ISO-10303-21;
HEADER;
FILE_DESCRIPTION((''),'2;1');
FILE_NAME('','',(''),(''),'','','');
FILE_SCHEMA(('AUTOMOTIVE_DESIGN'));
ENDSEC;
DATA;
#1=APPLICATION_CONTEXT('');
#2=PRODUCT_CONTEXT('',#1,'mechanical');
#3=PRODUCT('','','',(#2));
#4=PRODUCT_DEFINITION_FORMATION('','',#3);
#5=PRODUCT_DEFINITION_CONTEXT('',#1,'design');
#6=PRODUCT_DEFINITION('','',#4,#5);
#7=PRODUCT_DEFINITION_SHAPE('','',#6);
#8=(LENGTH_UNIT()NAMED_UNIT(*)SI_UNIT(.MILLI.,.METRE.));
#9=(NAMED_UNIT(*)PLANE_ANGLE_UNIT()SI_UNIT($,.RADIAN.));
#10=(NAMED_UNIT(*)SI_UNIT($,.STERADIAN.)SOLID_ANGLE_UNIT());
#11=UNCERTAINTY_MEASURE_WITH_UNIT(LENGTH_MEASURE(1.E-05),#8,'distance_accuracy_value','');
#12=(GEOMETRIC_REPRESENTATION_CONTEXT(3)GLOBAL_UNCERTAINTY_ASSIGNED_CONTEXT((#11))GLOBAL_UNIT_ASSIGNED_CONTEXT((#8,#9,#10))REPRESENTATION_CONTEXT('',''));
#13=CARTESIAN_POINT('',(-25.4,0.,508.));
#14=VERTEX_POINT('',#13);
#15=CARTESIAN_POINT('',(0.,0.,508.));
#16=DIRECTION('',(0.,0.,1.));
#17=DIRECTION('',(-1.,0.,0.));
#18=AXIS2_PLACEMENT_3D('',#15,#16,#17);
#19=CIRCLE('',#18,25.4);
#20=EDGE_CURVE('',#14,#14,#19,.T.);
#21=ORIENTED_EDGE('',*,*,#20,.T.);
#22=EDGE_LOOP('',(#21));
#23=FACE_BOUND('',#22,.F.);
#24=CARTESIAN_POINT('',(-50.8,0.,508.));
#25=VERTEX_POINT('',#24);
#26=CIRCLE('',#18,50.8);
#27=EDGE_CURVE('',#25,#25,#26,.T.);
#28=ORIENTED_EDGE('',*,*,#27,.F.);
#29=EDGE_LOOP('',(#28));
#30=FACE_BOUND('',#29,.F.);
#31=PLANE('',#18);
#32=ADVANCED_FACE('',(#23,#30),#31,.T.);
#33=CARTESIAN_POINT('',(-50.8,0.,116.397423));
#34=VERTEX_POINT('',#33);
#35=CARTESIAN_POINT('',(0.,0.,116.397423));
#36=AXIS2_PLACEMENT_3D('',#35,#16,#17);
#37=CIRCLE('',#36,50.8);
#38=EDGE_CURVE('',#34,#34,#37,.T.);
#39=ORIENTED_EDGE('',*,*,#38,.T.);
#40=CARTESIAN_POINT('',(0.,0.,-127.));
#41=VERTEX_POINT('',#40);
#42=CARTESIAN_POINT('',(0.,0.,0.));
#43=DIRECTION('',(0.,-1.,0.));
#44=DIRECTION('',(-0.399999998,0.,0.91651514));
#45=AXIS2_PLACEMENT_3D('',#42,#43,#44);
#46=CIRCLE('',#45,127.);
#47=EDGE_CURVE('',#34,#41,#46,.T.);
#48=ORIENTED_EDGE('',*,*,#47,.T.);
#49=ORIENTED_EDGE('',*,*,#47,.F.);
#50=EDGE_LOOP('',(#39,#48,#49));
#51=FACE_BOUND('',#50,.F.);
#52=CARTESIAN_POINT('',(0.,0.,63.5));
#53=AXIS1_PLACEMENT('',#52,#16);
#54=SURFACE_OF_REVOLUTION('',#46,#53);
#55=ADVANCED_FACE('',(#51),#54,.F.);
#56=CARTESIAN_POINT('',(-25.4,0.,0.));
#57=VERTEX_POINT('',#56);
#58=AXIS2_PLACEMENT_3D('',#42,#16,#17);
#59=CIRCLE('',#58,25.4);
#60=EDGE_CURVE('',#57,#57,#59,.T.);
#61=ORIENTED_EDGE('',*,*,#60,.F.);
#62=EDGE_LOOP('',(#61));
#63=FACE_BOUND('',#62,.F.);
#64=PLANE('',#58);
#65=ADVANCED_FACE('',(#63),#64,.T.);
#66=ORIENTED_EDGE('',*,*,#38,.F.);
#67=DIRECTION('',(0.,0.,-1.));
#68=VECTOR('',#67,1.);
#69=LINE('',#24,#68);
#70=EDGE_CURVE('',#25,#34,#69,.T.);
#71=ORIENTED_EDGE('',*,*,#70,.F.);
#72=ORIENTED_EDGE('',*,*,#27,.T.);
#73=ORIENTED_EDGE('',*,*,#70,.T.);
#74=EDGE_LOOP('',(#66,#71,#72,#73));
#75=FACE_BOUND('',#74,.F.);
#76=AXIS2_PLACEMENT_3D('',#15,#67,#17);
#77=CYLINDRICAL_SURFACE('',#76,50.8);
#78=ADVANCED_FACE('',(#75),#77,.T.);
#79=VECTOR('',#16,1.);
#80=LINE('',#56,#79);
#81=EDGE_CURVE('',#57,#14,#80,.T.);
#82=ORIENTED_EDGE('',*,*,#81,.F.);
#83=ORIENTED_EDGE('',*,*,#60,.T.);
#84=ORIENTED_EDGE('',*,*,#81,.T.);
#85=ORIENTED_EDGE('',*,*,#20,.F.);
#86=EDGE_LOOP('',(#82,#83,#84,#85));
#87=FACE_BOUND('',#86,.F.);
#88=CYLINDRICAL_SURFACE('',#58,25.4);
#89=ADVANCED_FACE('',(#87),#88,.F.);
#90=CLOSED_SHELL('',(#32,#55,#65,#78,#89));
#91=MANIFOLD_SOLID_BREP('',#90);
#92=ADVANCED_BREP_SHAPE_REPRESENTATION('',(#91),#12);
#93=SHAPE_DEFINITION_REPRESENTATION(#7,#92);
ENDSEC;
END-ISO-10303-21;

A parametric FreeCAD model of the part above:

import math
import FreeCAD as App
import Part
import Sketcher
from FreeCAD import Vector
Q = App.Units.Quantity

doc = App.newDocument("Part")
body = doc.addObject("PartDesign::Body", "Body")

# Sketch on XZ plane
sketch1 = doc.addObject("Sketcher::SketchObject", "Sketch")
body.addObject(sketch1)
sketch1.AttachmentSupport = (doc.XZ_Plane, [""])
sketch1.MapMode = "FlatFace"
sketch1.addGeometry([
    Part.LineSegment(Vector(-25, 0, 0), Vector(-25, 508, 0)),  # 0
    Part.LineSegment(Vector(-25, 508, 0), Vector(-51, 508, 0)),  # 1
    Part.LineSegment(Vector(-51, 508, 0), Vector(-51, 116, 0)),  # 2
    Part.ArcOfCircle(Part.Circle(Vector(0, 0, 0), Vector(0, 0, 1), 127), math.radians(114), math.radians(270)),  # 3
    Part.LineSegment(Vector(0, -127, 0), Vector(0, 0, 0)),  # 4
    Part.LineSegment(Vector(0, 0, 0), Vector(-25, 0, 0)),  # 5
], False)
sketch1.addConstraint([
    Sketcher.Constraint("Coincident", 0, 2, 1, 1),
    Sketcher.Constraint("Coincident", 1, 2, 2, 1),
    Sketcher.Constraint("Coincident", 2, 2, 3, 1),
    Sketcher.Constraint("Coincident", 3, 2, 4, 1),
    Sketcher.Constraint("Coincident", 4, 2, 5, 1),
    Sketcher.Constraint("Coincident", 5, 2, 0, 1),
    Sketcher.Constraint("Vertical", 0),
    Sketcher.Constraint("Horizontal", 1),
    Sketcher.Constraint("Vertical", 2),
    Sketcher.Constraint("Vertical", 4),
    Sketcher.Constraint("Horizontal", 5),
    Sketcher.Constraint("Coincident", 3, 3, -1, 1),
    Sketcher.Constraint("Coincident", 4, 2, -1, 1),
    Sketcher.Constraint("Equal", 1, 5),
    Sketcher.Constraint("Radius", 3, Q("5 in")),
    Sketcher.Constraint("DistanceX", 1, 2, 1, 1, Q("1 in")),
    Sketcher.Constraint("DistanceY", 0, 1, 0, 2, Q("20 in")),
])
revolution = doc.addObject("PartDesign::Revolution", "Revolution")
body.addObject(revolution)
revolution.Profile = sketch1
revolution.ReferenceAxis = (sketch1, ["V_Axis"])
revolution.Angle = 360

doc.recompute()
